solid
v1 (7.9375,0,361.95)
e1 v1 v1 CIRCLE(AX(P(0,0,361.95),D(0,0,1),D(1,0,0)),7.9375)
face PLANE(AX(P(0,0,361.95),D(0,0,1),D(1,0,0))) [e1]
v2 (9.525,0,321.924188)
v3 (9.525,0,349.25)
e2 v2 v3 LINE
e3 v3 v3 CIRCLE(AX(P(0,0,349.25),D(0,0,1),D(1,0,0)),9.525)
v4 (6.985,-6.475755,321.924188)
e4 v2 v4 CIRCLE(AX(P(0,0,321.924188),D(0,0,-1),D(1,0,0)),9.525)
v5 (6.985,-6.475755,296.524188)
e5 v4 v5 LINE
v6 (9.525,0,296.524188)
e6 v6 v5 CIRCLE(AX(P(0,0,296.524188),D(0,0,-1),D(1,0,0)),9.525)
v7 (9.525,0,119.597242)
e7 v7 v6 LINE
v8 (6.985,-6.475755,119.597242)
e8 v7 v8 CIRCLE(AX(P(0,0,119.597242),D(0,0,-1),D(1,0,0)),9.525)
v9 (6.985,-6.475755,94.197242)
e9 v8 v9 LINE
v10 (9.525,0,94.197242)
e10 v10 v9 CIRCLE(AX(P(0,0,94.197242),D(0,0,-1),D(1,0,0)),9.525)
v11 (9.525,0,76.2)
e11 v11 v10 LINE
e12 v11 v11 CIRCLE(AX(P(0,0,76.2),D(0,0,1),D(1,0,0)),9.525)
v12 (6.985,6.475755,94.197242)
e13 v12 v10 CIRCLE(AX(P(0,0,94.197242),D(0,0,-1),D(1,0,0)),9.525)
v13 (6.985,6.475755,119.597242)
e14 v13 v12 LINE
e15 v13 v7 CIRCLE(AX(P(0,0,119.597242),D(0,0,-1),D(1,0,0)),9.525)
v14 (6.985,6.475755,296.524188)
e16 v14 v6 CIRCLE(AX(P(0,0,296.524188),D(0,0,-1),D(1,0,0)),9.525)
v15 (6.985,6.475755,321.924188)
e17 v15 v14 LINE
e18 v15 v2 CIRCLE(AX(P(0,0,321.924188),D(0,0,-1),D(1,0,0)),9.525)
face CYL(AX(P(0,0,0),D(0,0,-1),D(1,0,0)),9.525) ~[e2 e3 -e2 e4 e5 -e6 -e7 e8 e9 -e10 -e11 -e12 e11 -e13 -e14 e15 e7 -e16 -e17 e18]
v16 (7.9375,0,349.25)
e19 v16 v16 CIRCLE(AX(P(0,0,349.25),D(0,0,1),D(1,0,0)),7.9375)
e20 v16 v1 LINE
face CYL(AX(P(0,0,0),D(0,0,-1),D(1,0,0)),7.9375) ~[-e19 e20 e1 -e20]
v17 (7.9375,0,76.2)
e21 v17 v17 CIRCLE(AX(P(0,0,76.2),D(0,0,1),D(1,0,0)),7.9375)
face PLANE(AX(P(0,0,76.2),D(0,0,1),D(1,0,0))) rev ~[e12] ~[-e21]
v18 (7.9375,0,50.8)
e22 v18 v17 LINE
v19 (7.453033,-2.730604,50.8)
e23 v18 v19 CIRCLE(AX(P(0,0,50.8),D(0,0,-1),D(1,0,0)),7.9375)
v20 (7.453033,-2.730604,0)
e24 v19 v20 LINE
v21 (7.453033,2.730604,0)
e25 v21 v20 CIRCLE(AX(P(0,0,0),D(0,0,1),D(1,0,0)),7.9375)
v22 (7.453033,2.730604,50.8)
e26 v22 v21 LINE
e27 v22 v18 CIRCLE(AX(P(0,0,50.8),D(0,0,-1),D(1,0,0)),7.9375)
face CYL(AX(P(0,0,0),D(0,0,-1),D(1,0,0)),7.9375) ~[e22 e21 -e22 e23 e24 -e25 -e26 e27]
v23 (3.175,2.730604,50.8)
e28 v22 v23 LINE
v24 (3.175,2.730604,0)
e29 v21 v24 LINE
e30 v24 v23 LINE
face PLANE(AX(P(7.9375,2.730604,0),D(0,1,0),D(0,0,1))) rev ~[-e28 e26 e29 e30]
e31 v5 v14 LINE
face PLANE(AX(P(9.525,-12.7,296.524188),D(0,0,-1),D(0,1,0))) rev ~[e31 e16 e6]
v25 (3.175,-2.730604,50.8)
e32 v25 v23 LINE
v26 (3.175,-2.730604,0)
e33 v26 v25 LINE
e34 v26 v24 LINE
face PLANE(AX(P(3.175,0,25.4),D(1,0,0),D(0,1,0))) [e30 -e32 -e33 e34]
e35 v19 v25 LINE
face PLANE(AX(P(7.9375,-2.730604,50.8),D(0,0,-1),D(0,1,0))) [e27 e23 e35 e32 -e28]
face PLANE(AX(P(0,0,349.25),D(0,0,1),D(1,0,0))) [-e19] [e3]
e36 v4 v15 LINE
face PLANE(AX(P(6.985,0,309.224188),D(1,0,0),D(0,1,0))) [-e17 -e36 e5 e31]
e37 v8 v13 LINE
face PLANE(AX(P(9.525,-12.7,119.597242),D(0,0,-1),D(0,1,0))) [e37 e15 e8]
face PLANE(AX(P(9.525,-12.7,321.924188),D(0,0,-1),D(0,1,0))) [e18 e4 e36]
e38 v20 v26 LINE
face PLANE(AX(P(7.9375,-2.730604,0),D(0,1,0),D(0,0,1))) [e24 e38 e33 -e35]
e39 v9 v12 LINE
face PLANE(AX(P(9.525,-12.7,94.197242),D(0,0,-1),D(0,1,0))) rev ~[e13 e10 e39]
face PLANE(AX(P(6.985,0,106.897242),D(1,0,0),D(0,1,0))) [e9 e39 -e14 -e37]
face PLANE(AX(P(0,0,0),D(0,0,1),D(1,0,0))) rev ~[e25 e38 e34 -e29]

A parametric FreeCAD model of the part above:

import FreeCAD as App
import Part
import Sketcher

V = App.Vector
Q = App.Units.Quantity


def add_polygon(sketch, points):
    """Adds a closed chain of lines whose ends are joined by coincident constraints."""
    first, n = sketch.GeometryCount, len(points)
    for a, b in zip(points, points[1:] + points[:1]):
        sketch.addGeometry(Part.LineSegment(App.Vector(*a, 0), App.Vector(*b, 0)), False)
    for i in range(n):
        sketch.addConstraint(Sketcher.Constraint("Coincident", first + i, 2, first + (i + 1) % n, 1))

doc = App.newDocument("Part")
body = doc.addObject("PartDesign::Body", "Body")

# Sketch on XY plane
sketch1 = doc.addObject("Sketcher::SketchObject", "Sketch")
body.addObject(sketch1)
sketch1.AttachmentSupport = (doc.XY_Plane, [""])
sketch1.MapMode = "FlatFace"
sketch1.addGeometry(Part.Circle(V(0, 0, 0), V(0, 0, 1), 8), False)
sketch1.addConstraint([
    Sketcher.Constraint("Coincident", 0, 3, -1, 1),
    Sketcher.Constraint("Diameter", 0, Q("0.625 in")),
])
pad1 = doc.addObject("PartDesign::Pad", "Pad")
body.addObject(pad1)
pad1.Profile = sketch1
pad1.Length = Q("14.25 in")

# Sketch on XY plane
sketch2 = doc.addObject("Sketcher::SketchObject", "Sketch001")
body.addObject(sketch2)
sketch2.AttachmentSupport = (doc.XY_Plane, [""])
sketch2.MapMode = "FlatFace"
sketch2.addGeometry([
    Part.Circle(V(0, 0, 0), V(0, 0, 1), 10),
    Part.Circle(V(0, 0, 0), V(0, 0, 1), 8),
], False)
sketch2.addConstraint([
    Sketcher.Constraint("Coincident", 0, 3, -1, 1),
    Sketcher.Constraint("Coincident", 1, 3, -1, 1),
    Sketcher.Constraint("Diameter", 0, Q("0.75 in")),
    Sketcher.Constraint("Diameter", 1, Q("0.625 in")),
])
pad2 = doc.addObject("PartDesign::Pad", "Pad001")
body.addObject(pad2)
pad2.Profile = sketch2
pad2.Length = Q("13.75 in")

# Sketch on XY plane
sketch3 = doc.addObject("Sketcher::SketchObject", "Sketch002")
body.addObject(sketch3)
sketch3.AttachmentSupport = (doc.XY_Plane, [""])
sketch3.MapMode = "FlatFace"
sketch3.addGeometry([
    Part.Circle(V(0, 0, 0), V(0, 0, 1), 10),
    Part.Circle(V(0, 0, 0), V(0, 0, 1), 8),
], False)
sketch3.addConstraint([
    Sketcher.Constraint("Coincident", 0, 3, -1, 1),
    Sketcher.Constraint("Coincident", 1, 3, -1, 1),
    Sketcher.Constraint("Diameter", 0, Q("0.75 in")),
    Sketcher.Constraint("Diameter", 1, Q("0.625 in")),
])
pocket1 = doc.addObject("PartDesign::Pocket", "Pocket")
body.addObject(pocket1)
pocket1.Profile = sketch3
pocket1.Length = Q("3 in")
pocket1.Reversed = True

# Sketch on YZ plane
sketch4 = doc.addObject("Sketcher::SketchObject", "Sketch003")
body.addObject(sketch4)
sketch4.AttachmentSupport = (doc.YZ_Plane, [""])
sketch4.MapMode = "FlatFace"
sketch4.AttachmentOffset = App.Placement(V(0, 0, 0.3125 * 25.4), App.Rotation())
add_polygon(sketch4, [(-3, 51), (-3, 0), (3, 0), (3, 51)])  # lines 0-3
sketch4.addConstraint([
    Sketcher.Constraint("Vertical", 0),
    Sketcher.Constraint("Horizontal", 1),
    Sketcher.Constraint("Vertical", 2),
    Sketcher.Constraint("Horizontal", 3),
    Sketcher.Constraint("Symmetric", 0, 2, 1, 2, -1, 1),
    Sketcher.Constraint("DistanceY", 0, 2, 0, 1, Q("2 in")),
    Sketcher.Constraint("DistanceX", 1, 1, 1, 2, 5.461208),
])
pocket2 = doc.addObject("PartDesign::Pocket", "Pocket001")
body.addObject(pocket2)
pocket2.Profile = sketch4
pocket2.Length = Q("0.1875 in")

# Sketch on YZ plane
sketch5 = doc.addObject("Sketcher::SketchObject", "Sketch004")
body.addObject(sketch5)
sketch5.AttachmentSupport = (doc.YZ_Plane, [""])
sketch5.MapMode = "FlatFace"
sketch5.AttachmentOffset = App.Placement(V(0, 0, 0.375 * 25.4), App.Rotation())
add_polygon(sketch5, [(-13, 322), (-13, 297), (13, 297), (13, 322)])  # lines 0-3
add_polygon(sketch5, [(-13, 120), (-13, 94), (13, 94), (13, 120)])  # lines 4-7
sketch5.addConstraint([
    Sketcher.Constraint("Vertical", 0),
    Sketcher.Constraint("Horizontal", 1),
    Sketcher.Constraint("Vertical", 2),
    Sketcher.Constraint("Horizontal", 3),
    Sketcher.Constraint("Vertical", 4),
    Sketcher.Constraint("Horizontal", 5),
    Sketcher.Constraint("Vertical", 6),
    Sketcher.Constraint("Horizontal", 7),
    Sketcher.Constraint("Vertical", 3, 2, 4, 2),
    Sketcher.Constraint("Vertical", 2, 2, 5, 2),
    Sketcher.Constraint("Equal", 7, 0),
    Sketcher.Constraint("Equal", 2, 4),
    Sketcher.Constraint("DistanceX", 1, 1, 1, 2, Q("1 in")),
    Sketcher.Constraint("DistanceX", 0, 2, -1, 1, Q("0.5 in")),
    Sketcher.Constraint("DistanceY", -1, 1, 0, 2, 296.524188),
    Sketcher.Constraint("DistanceY", -1, 1, 6, 2, 119.597242),
])
pocket3 = doc.addObject("PartDesign::Pocket", "Pocket002")
body.addObject(pocket3)
pocket3.Profile = sketch5
pocket3.Length = Q("0.1 in")

doc.recompute()
